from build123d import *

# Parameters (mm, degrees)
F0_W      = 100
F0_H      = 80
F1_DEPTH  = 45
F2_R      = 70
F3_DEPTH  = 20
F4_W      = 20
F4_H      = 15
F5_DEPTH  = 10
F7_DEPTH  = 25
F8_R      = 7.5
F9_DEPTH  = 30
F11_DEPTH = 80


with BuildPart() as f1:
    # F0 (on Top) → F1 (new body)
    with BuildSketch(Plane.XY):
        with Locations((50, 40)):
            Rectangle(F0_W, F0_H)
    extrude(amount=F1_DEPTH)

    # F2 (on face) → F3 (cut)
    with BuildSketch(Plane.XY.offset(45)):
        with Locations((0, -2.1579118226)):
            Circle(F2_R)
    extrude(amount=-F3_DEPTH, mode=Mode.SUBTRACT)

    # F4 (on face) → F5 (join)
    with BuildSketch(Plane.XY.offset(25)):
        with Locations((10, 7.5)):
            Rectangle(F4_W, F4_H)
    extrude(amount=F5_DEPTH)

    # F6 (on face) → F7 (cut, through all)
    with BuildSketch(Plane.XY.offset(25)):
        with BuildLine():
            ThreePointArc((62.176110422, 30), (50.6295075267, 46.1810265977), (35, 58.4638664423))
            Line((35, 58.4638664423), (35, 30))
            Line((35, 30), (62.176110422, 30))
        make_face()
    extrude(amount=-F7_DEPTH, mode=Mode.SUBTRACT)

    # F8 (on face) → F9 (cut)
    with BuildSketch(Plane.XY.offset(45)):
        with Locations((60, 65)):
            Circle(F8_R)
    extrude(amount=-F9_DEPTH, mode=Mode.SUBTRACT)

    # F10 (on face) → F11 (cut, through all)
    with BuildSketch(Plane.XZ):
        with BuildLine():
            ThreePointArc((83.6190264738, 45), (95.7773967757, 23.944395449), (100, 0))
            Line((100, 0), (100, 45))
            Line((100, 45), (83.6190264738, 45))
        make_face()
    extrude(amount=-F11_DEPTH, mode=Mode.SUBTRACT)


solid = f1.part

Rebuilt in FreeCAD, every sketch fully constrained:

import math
import FreeCAD as App
import Part
import Sketcher


def add_polygon(sketch, points):
    """Adds a closed chain of lines whose ends are joined by coincident constraints."""
    first, n = sketch.GeometryCount, len(points)
    for a, b in zip(points, points[1:] + points[:1]):
        sketch.addGeometry(Part.LineSegment(App.Vector(*a, 0), App.Vector(*b, 0)), False)
    for i in range(n):
        sketch.addConstraint(Sketcher.Constraint("Coincident", first + i, 2, first + (i + 1) % n, 1))

doc = App.newDocument("Part")
body = doc.addObject("PartDesign::Body", "Body")

# Sketch on XY plane
sketch1 = body.newObject("Sketcher::SketchObject", "Sketch")
sketch1.AttachmentSupport = (doc.getObject("XY_Plane"), [""])
sketch1.MapMode = "FlatFace"
add_polygon(sketch1, [(0, 80), (0, 0), (100, 0), (100, 80)])  # lines 0-3
sketch1.addConstraint(Sketcher.Constraint("Vertical", 0))
sketch1.addConstraint(Sketcher.Constraint("Horizontal", 1))
sketch1.addConstraint(Sketcher.Constraint("Vertical", 2))
sketch1.addConstraint(Sketcher.Constraint("Horizontal", 3))
sketch1.addConstraint(Sketcher.Constraint("Coincident", 0, 2, -1, 1))
sketch1.addConstraint(Sketcher.Constraint("DistanceX", 1, 1, 1, 2, 100.0))
sketch1.addConstraint(Sketcher.Constraint("DistanceY", 0, 2, 0, 1, 80.0))
pad1 = body.newObject("PartDesign::Pad", "Pad")
pad1.Profile = sketch1
pad1.Length = 45

# Sketch on XY plane
sketch2 = body.newObject("Sketcher::SketchObject", "Sketch001")
sketch2.AttachmentSupport = (doc.getObject("XY_Plane"), [""])
sketch2.MapMode = "FlatFace"
sketch2.AttachmentOffset = App.Placement(App.Vector(0, 0, 45), App.Rotation())
sketch2.addGeometry(Part.Circle(App.Vector(0, -2, 0), App.Vector(0, 0, 1), 70), False)
sketch2.addConstraint(Sketcher.Constraint("PointOnObject", 0, 3, -2))
sketch2.addConstraint(Sketcher.Constraint("Diameter", 0, 140.0))
sketch2.addConstraint(Sketcher.Constraint("DistanceY", 0, 3, -1, 1, 2.157912))
pocket1 = body.newObject("PartDesign::Pocket", "Pocket")
pocket1.Profile = sketch2
pocket1.Length = 20

# Sketch on XY plane
sketch3 = body.newObject("Sketcher::SketchObject", "Sketch002")
sketch3.AttachmentSupport = (doc.getObject("XY_Plane"), [""])
sketch3.MapMode = "FlatFace"
sketch3.AttachmentOffset = App.Placement(App.Vector(0, 0, 25), App.Rotation())
add_polygon(sketch3, [(0, 15), (0, 0), (20, 0), (20, 15)])  # lines 0-3
sketch3.addConstraint(Sketcher.Constraint("Vertical", 0))
sketch3.addConstraint(Sketcher.Constraint("Horizontal", 1))
sketch3.addConstraint(Sketcher.Constraint("Vertical", 2))
sketch3.addConstraint(Sketcher.Constraint("Horizontal", 3))
sketch3.addConstraint(Sketcher.Constraint("Coincident", 0, 2, -1, 1))
sketch3.addConstraint(Sketcher.Constraint("DistanceX", 1, 1, 1, 2, 20.0))
sketch3.addConstraint(Sketcher.Constraint("DistanceY", 0, 2, 0, 1, 15.0))
pad2 = body.newObject("PartDesign::Pad", "Pad001")
pad2.Profile = sketch3
pad2.Length = 10

# Sketch on XY plane
sketch4 = body.newObject("Sketcher::SketchObject", "Sketch003")
sketch4.AttachmentSupport = (doc.getObject("XY_Plane"), [""])
sketch4.MapMode = "FlatFace"
sketch4.AttachmentOffset = App.Placement(App.Vector(0, 0, 25), App.Rotation())
sketch4.addGeometry(Part.ArcOfCircle(Part.Circle(App.Vector(0, -2, 0), App.Vector(0, 0, 1), 70), math.radians(27), math.radians(60)), False)
sketch4.addGeometry(Part.LineSegment(App.Vector(35, 58, 0), App.Vector(35, 30, 0)), False)
sketch4.addGeometry(Part.LineSegment(App.Vector(35, 30, 0), App.Vector(62, 30, 0)), False)
sketch4.addConstraint(Sketcher.Constraint("Coincident", 0, 2, 1, 1))
sketch4.addConstraint(Sketcher.Constraint("Coincident", 1, 2, 2, 1))
sketch4.addConstraint(Sketcher.Constraint("Coincident", 2, 2, 0, 1))
sketch4.addConstraint(Sketcher.Constraint("Vertical", 1))
sketch4.addConstraint(Sketcher.Constraint("Horizontal", 2))
sketch4.addConstraint(Sketcher.Constraint("PointOnObject", 0, 3, -2))
sketch4.addConstraint(Sketcher.Constraint("Radius", 0, 70.0))
sketch4.addConstraint(Sketcher.Constraint("DistanceX", -1, 1, 0, 2, 35.0))
sketch4.addConstraint(Sketcher.Constraint("DistanceY", -1, 1, 1, 2, 30.0))
sketch4.addConstraint(Sketcher.Constraint("DistanceX", 2, 1, 2, 2, 27.17611))
pocket2 = body.newObject("PartDesign::Pocket", "Pocket001")
pocket2.Profile = sketch4
pocket2.Type = "ThroughAll"

# Sketch on XY plane
sketch5 = body.newObject("Sketcher::SketchObject", "Sketch004")
sketch5.AttachmentSupport = (doc.getObject("XY_Plane"), [""])
sketch5.MapMode = "FlatFace"
sketch5.AttachmentOffset = App.Placement(App.Vector(0, 0, 45), App.Rotation())
sketch5.addGeometry(Part.Circle(App.Vector(60, 65, 0), App.Vector(0, 0, 1), 8), False)
sketch5.addConstraint(Sketcher.Constraint("Diameter", 0, 15.0))
sketch5.addConstraint(Sketcher.Constraint("DistanceX", -1, 1, 0, 3, 60.0))
sketch5.addConstraint(Sketcher.Constraint("DistanceY", -1, 1, 0, 3, 65.0))
pocket3 = body.newObject("PartDesign::Pocket", "Pocket002")
pocket3.Profile = sketch5
pocket3.Length = 30

# Sketch on XZ plane
sketch6 = body.newObject("Sketcher::SketchObject", "Sketch005")
sketch6.AttachmentSupport = (doc.getObject("XZ_Plane"), [""])
sketch6.MapMode = "FlatFace"
sketch6.addGeometry(Part.ArcOfCircle(Part.Circle(App.Vector(30, 0, 0), App.Vector(0, 0, 1), 70), math.radians(0), math.radians(40)), False)
sketch6.addGeometry(Part.LineSegment(App.Vector(100, 0, 0), App.Vector(100, 45, 0)), False)
sketch6.addGeometry(Part.LineSegment(App.Vector(100, 45, 0), App.Vector(84, 45, 0)), False)
sketch6.addConstraint(Sketcher.Constraint("Tangent", 0, 1, 1, 1))
sketch6.addConstraint(Sketcher.Constraint("Coincident", 1, 2, 2, 1))
sketch6.addConstraint(Sketcher.Constraint("Coincident", 2, 2, 0, 2))
sketch6.addConstraint(Sketcher.Constraint("Vertical", 1))
sketch6.addConstraint(Sketcher.Constraint("Horizontal", 2))
sketch6.addConstraint(Sketcher.Constraint("PointOnObject", 0, 3, -1))
sketch6.addConstraint(Sketcher.Constraint("Radius", 0, 70.0))
sketch6.addConstraint(Sketcher.Constraint("DistanceY", 1, 1, 1, 2, 45.0))
sketch6.addConstraint(Sketcher.Constraint("DistanceX", -1, 1, 0, 3, 30.0))
pocket4 = body.newObject("PartDesign::Pocket", "Pocket003")
pocket4.Profile = sketch6
pocket4.Type = "ThroughAll"

doc.recompute()
